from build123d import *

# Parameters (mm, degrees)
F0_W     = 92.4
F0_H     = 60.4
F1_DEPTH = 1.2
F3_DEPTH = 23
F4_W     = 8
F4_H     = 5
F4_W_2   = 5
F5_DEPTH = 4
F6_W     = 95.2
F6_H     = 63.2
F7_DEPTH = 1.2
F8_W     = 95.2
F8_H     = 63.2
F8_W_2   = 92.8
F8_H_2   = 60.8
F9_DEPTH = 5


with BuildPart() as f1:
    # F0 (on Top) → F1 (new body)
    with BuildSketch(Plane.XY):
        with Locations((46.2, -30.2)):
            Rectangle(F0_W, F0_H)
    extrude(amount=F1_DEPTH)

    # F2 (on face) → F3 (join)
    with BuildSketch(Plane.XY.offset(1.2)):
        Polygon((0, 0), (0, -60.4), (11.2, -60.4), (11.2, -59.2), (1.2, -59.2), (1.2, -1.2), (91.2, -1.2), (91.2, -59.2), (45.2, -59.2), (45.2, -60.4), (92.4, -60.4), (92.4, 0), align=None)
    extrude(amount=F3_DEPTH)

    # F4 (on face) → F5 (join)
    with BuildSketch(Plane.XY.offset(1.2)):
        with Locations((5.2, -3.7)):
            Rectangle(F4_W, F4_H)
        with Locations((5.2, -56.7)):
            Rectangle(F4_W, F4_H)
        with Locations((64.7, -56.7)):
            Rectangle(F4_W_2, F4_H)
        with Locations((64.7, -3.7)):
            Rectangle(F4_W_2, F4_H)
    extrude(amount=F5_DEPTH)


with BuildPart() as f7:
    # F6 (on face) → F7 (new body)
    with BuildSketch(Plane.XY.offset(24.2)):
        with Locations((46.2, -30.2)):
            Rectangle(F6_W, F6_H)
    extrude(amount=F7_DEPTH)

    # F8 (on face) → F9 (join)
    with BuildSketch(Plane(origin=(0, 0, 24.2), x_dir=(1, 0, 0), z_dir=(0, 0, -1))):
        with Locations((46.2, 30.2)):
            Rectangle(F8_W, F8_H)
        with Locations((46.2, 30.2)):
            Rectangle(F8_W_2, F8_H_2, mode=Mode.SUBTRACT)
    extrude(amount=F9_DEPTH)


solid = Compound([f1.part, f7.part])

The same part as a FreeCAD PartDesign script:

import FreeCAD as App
import Part
import Sketcher


def add_polygon(sketch, points):
    """Adds a closed chain of lines whose ends are joined by coincident constraints."""
    first, n = sketch.GeometryCount, len(points)
    for a, b in zip(points, points[1:] + points[:1]):
        sketch.addGeometry(Part.LineSegment(App.Vector(*a, 0), App.Vector(*b, 0)), False)
    for i in range(n):
        sketch.addConstraint(Sketcher.Constraint("Coincident", first + i, 2, first + (i + 1) % n, 1))

doc = App.newDocument("Part")
body = doc.addObject("PartDesign::Body", "Body")

sketch1 = doc.addObject("Sketcher::SketchObject", "Sketch")
body.addObject(sketch1)
sketch1.AttachmentSupport = (doc.XY_Plane, [""])
sketch1.MapMode = "FlatFace"
add_polygon(sketch1, [(0, 0), (0, -60), (92, -60), (92, 0)])
sketch1.addConstraint(Sketcher.Constraint("Vertical", 0))
sketch1.addConstraint(Sketcher.Constraint("Horizontal", 1))
sketch1.addConstraint(Sketcher.Constraint("Vertical", 2))
sketch1.addConstraint(Sketcher.Constraint("Horizontal", 3))
sketch1.addConstraint(Sketcher.Constraint("Coincident", 3, 2, -1, 1))
sketch1.addConstraint(Sketcher.Constraint("DistanceX", 1, 1, 1, 2, 92.4))
sketch1.addConstraint(Sketcher.Constraint("DistanceY", 0, 2, 0, 1, 60.4))
pad1 = doc.addObject("PartDesign::Pad", "Pad")
body.addObject(pad1)
pad1.Profile = sketch1
pad1.Length = 1.2

sketch2 = doc.addObject("Sketcher::SketchObject", "Sketch001")
body.addObject(sketch2)
sketch2.AttachmentSupport = (doc.XY_Plane, [""])
sketch2.MapMode = "FlatFace"
sketch2.AttachmentOffset = App.Placement(App.Vector(0, 0, 1.2), App.Rotation())
add_polygon(sketch2, [(0, 0), (0, -60.4), (11.2, -60.4), (11.2, -59.2), (1.2, -59.2), (1.2, -1.2), (91.2, -1.2), (91.2, -59.2), (45.2, -59.2), (45.2, -60.4), (92.4, -60.4), (92.4, 0)])
sketch2.addConstraint(Sketcher.Constraint("Vertical", 0))
sketch2.addConstraint(Sketcher.Constraint("Horizontal", 1))
sketch2.addConstraint(Sketcher.Constraint("Vertical", 2))
sketch2.addConstraint(Sketcher.Constraint("Horizontal", 3))
sketch2.addConstraint(Sketcher.Constraint("Vertical", 4))
sketch2.addConstraint(Sketcher.Constraint("Horizontal", 5))
sketch2.addConstraint(Sketcher.Constraint("Vertical", 6))
sketch2.addConstraint(Sketcher.Constraint("Horizontal", 7))
sketch2.addConstraint(Sketcher.Constraint("Vertical", 8))
sketch2.addConstraint(Sketcher.Constraint("Horizontal", 9))
sketch2.addConstraint(Sketcher.Constraint("Vertical", 10))
sketch2.addConstraint(Sketcher.Constraint("Horizontal", 11))
sketch2.addConstraint(Sketcher.Constraint("Coincident", 11, 2, -1, 1))
sketch2.addConstraint(Sketcher.Constraint("Horizontal", 3, 2, 6, 2))
sketch2.addConstraint(Sketcher.Constraint("Horizontal", 1, 2, 8, 2))
sketch2.addConstraint(Sketcher.Constraint("DistanceX", 3, 2, 3, 1, 10.0))
sketch2.addConstraint(Sketcher.Constraint("DistanceX", 5, 1, 5, 2, 90.0))
sketch2.addConstraint(Sketcher.Constraint("DistanceX", 7, 2, 7, 1, 46.0))
sketch2.addConstraint(Sketcher.Constraint("DistanceY", 4, 1, 4, 2, 58.0))
sketch2.addConstraint(Sketcher.Constraint("DistanceX", 1, 1, 1, 2, 11.2))
sketch2.addConstraint(Sketcher.Constraint("DistanceX", 9, 1, 9, 2, 47.2))
sketch2.addConstraint(Sketcher.Constraint("DistanceY", 0, 2, 0, 1, 60.4))
sketch2.addConstraint(Sketcher.Constraint("DistanceY", 2, 1, 2, 2, 1.2))
pad2 = doc.addObject("PartDesign::Pad", "Pad001")
body.addObject(pad2)
pad2.Profile = sketch2
pad2.Length = 23

sketch3 = doc.addObject("Sketcher::SketchObject", "Sketch002")
body.addObject(sketch3)
sketch3.AttachmentSupport = (doc.XY_Plane, [""])
sketch3.MapMode = "FlatFace"
sketch3.AttachmentOffset = App.Placement(App.Vector(0, 0, 1.2), App.Rotation())
add_polygon(sketch3, [(1, -1), (1, -6), (9, -6), (9, -1)])
add_polygon(sketch3, [(1, -54), (1, -59), (9, -59), (9, -54)])
add_polygon(sketch3, [(62, -54), (62, -59), (67, -59), (67, -54)])
add_polygon(sketch3, [(62, -1), (62, -6), (67, -6), (67, -1)])
sketch3.addConstraint(Sketcher.Constraint("Vertical", 0))
sketch3.addConstraint(Sketcher.Constraint("Horizontal", 1))
sketch3.addConstraint(Sketcher.Constraint("Vertical", 2))
sketch3.addConstraint(Sketcher.Constraint("Horizontal", 3))
sketch3.addConstraint(Sketcher.Constraint("Vertical", 4))
sketch3.addConstraint(Sketcher.Constraint("Horizontal", 5))
sketch3.addConstraint(Sketcher.Constraint("Vertical", 6))
sketch3.addConstraint(Sketcher.Constraint("Horizontal", 7))
sketch3.addConstraint(Sketcher.Constraint("Vertical", 8))
sketch3.addConstraint(Sketcher.Constraint("Horizontal", 9))
sketch3.addConstraint(Sketcher.Constraint("Vertical", 10))
sketch3.addConstraint(Sketcher.Constraint("Horizontal", 11))
sketch3.addConstraint(Sketcher.Constraint("Vertical", 12))
sketch3.addConstraint(Sketcher.Constraint("Horizontal", 13))
sketch3.addConstraint(Sketcher.Constraint("Vertical", 14))
sketch3.addConstraint(Sketcher.Constraint("Horizontal", 15))
sketch3.addConstraint(Sketcher.Constraint("Horizontal", 5, 2, 8, 2))
sketch3.addConstraint(Sketcher.Constraint("Horizontal", 7, 2, 10, 2))
sketch3.addConstraint(Sketcher.Constraint("Horizontal", 1, 2, 12, 2))
sketch3.addConstraint(Sketcher.Constraint("Horizontal", 3, 2, 14, 2))
sketch3.addConstraint(Sketcher.Constraint("Vertical", 3, 2, 4, 2))
sketch3.addConstraint(Sketcher.Constraint("Vertical", 2, 2, 5, 2))
sketch3.addConstraint(Sketcher.Constraint("Vertical", 11, 2, 12, 2))
sketch3.addConstraint(Sketcher.Constraint("Vertical", 10, 2, 13, 2))
sketch3.addConstraint(Sketcher.Constraint("Equal", 15, 0))
sketch3.addConstraint(Sketcher.Constraint("Equal", 2, 4))
sketch3.addConstraint(Sketcher.Constraint("DistanceX", 1, 1, 1, 2, 8.0))
sketch3.addConstraint(Sketcher.Constraint("DistanceX", 9, 1, 9, 2, 5.0))
sketch3.addConstraint(Sketcher.Constraint("DistanceY", 4, 2, 0, 2, 53.0))
sketch3.addConstraint(Sketcher.Constraint("DistanceX", 5, 2, 8, 2, 53.0))
sketch3.addConstraint(Sketcher.Constraint("DistanceX", -1, 1, 0, 2, 1.2))
sketch3.addConstraint(Sketcher.Constraint("DistanceY", 0, 2, -1, 1, 6.2))
pad3 = doc.addObject("PartDesign::Pad", "Pad002")
body.addObject(pad3)
pad3.Profile = sketch3
pad3.Length = 4
body2 = doc.addObject("PartDesign::Body", "Body001")

sketch4 = doc.addObject("Sketcher::SketchObject", "Sketch003")
body2.addObject(sketch4)
sketch4.AttachmentSupport = (doc.getObject("XY_Plane001"), [""])
sketch4.MapMode = "FlatFace"
sketch4.AttachmentOffset = App.Placement(App.Vector(0, 0, 24.2), App.Rotation())
add_polygon(sketch4, [(-1, 1), (-1, -62), (94, -62), (94, 1)])
sketch4.addConstraint(Sketcher.Constraint("Vertical", 0))
sketch4.addConstraint(Sketcher.Constraint("Horizontal", 1))
sketch4.addConstraint(Sketcher.Constraint("Vertical", 2))
sketch4.addConstraint(Sketcher.Constraint("Horizontal", 3))
sketch4.addConstraint(Sketcher.Constraint("DistanceX", 1, 1, 1, 2, 95.2))
sketch4.addConstraint(Sketcher.Constraint("DistanceY", 0, 2, 0, 1, 63.2))
sketch4.addConstraint(Sketcher.Constraint("DistanceX", 0, 2, -1, 1, 1.4))
sketch4.addConstraint(Sketcher.Constraint("DistanceY", 0, 2, -1, 1, 61.8))
pad4 = doc.addObject("PartDesign::Pad", "Pad003")
body2.addObject(pad4)
pad4.Profile = sketch4
pad4.Length = 1.2

sketch5 = doc.addObject("Sketcher::SketchObject", "Sketch004")
body2.addObject(sketch5)
sketch5.AttachmentSupport = (doc.getObject("XY_Plane001"), [""])
sketch5.MapMode = "FlatFace"
sketch5.AttachmentOffset = App.Placement(App.Vector(0, 0, 24.2), App.Rotation())
add_polygon(sketch5, [(-1, -62), (-1, 1), (94, 1), (94, -62)])
add_polygon(sketch5, [(93, 0), (0, 0), (0, -61), (93, -61)])
sketch5.addConstraint(Sketcher.Constraint("Vertical", 0))
sketch5.addConstraint(Sketcher.Constraint("Horizontal", 1))
sketch5.addConstraint(Sketcher.Constraint("Vertical", 2))
sketch5.addConstraint(Sketcher.Constraint("Horizontal", 3))
sketch5.addConstraint(Sketcher.Constraint("Horizontal", 4))
sketch5.addConstraint(Sketcher.Constraint("Vertical", 5))
sketch5.addConstraint(Sketcher.Constraint("Horizontal", 6))
sketch5.addConstraint(Sketcher.Constraint("Vertical", 7))
sketch5.addConstraint(Sketcher.Constraint("DistanceX", 1, 1, 1, 2, 95.2))
sketch5.addConstraint(Sketcher.Constraint("DistanceX", 4, 2, 4, 1, 92.8))
sketch5.addConstraint(Sketcher.Constraint("DistanceY", 0, 1, 0, 2, 63.2))
sketch5.addConstraint(Sketcher.Constraint("DistanceY", 5, 2, 5, 1, 60.8))
sketch5.addConstraint(Sketcher.Constraint("DistanceY", 3, 2, 4, 2, 62.0))
sketch5.addConstraint(Sketcher.Constraint("DistanceX", 4, 2, 1, 2, 94.0))
sketch5.addConstraint(Sketcher.Constraint("DistanceX", 0, 2, -1, 1, 1.4))
sketch5.addConstraint(Sketcher.Constraint("DistanceY", -1, 1, 0, 2, 1.4))
pad5 = doc.addObject("PartDesign::Pad", "Pad004")
body2.addObject(pad5)
pad5.Profile = sketch5
pad5.Length = 5
pad5.Reversed = True

doc.recompute()
